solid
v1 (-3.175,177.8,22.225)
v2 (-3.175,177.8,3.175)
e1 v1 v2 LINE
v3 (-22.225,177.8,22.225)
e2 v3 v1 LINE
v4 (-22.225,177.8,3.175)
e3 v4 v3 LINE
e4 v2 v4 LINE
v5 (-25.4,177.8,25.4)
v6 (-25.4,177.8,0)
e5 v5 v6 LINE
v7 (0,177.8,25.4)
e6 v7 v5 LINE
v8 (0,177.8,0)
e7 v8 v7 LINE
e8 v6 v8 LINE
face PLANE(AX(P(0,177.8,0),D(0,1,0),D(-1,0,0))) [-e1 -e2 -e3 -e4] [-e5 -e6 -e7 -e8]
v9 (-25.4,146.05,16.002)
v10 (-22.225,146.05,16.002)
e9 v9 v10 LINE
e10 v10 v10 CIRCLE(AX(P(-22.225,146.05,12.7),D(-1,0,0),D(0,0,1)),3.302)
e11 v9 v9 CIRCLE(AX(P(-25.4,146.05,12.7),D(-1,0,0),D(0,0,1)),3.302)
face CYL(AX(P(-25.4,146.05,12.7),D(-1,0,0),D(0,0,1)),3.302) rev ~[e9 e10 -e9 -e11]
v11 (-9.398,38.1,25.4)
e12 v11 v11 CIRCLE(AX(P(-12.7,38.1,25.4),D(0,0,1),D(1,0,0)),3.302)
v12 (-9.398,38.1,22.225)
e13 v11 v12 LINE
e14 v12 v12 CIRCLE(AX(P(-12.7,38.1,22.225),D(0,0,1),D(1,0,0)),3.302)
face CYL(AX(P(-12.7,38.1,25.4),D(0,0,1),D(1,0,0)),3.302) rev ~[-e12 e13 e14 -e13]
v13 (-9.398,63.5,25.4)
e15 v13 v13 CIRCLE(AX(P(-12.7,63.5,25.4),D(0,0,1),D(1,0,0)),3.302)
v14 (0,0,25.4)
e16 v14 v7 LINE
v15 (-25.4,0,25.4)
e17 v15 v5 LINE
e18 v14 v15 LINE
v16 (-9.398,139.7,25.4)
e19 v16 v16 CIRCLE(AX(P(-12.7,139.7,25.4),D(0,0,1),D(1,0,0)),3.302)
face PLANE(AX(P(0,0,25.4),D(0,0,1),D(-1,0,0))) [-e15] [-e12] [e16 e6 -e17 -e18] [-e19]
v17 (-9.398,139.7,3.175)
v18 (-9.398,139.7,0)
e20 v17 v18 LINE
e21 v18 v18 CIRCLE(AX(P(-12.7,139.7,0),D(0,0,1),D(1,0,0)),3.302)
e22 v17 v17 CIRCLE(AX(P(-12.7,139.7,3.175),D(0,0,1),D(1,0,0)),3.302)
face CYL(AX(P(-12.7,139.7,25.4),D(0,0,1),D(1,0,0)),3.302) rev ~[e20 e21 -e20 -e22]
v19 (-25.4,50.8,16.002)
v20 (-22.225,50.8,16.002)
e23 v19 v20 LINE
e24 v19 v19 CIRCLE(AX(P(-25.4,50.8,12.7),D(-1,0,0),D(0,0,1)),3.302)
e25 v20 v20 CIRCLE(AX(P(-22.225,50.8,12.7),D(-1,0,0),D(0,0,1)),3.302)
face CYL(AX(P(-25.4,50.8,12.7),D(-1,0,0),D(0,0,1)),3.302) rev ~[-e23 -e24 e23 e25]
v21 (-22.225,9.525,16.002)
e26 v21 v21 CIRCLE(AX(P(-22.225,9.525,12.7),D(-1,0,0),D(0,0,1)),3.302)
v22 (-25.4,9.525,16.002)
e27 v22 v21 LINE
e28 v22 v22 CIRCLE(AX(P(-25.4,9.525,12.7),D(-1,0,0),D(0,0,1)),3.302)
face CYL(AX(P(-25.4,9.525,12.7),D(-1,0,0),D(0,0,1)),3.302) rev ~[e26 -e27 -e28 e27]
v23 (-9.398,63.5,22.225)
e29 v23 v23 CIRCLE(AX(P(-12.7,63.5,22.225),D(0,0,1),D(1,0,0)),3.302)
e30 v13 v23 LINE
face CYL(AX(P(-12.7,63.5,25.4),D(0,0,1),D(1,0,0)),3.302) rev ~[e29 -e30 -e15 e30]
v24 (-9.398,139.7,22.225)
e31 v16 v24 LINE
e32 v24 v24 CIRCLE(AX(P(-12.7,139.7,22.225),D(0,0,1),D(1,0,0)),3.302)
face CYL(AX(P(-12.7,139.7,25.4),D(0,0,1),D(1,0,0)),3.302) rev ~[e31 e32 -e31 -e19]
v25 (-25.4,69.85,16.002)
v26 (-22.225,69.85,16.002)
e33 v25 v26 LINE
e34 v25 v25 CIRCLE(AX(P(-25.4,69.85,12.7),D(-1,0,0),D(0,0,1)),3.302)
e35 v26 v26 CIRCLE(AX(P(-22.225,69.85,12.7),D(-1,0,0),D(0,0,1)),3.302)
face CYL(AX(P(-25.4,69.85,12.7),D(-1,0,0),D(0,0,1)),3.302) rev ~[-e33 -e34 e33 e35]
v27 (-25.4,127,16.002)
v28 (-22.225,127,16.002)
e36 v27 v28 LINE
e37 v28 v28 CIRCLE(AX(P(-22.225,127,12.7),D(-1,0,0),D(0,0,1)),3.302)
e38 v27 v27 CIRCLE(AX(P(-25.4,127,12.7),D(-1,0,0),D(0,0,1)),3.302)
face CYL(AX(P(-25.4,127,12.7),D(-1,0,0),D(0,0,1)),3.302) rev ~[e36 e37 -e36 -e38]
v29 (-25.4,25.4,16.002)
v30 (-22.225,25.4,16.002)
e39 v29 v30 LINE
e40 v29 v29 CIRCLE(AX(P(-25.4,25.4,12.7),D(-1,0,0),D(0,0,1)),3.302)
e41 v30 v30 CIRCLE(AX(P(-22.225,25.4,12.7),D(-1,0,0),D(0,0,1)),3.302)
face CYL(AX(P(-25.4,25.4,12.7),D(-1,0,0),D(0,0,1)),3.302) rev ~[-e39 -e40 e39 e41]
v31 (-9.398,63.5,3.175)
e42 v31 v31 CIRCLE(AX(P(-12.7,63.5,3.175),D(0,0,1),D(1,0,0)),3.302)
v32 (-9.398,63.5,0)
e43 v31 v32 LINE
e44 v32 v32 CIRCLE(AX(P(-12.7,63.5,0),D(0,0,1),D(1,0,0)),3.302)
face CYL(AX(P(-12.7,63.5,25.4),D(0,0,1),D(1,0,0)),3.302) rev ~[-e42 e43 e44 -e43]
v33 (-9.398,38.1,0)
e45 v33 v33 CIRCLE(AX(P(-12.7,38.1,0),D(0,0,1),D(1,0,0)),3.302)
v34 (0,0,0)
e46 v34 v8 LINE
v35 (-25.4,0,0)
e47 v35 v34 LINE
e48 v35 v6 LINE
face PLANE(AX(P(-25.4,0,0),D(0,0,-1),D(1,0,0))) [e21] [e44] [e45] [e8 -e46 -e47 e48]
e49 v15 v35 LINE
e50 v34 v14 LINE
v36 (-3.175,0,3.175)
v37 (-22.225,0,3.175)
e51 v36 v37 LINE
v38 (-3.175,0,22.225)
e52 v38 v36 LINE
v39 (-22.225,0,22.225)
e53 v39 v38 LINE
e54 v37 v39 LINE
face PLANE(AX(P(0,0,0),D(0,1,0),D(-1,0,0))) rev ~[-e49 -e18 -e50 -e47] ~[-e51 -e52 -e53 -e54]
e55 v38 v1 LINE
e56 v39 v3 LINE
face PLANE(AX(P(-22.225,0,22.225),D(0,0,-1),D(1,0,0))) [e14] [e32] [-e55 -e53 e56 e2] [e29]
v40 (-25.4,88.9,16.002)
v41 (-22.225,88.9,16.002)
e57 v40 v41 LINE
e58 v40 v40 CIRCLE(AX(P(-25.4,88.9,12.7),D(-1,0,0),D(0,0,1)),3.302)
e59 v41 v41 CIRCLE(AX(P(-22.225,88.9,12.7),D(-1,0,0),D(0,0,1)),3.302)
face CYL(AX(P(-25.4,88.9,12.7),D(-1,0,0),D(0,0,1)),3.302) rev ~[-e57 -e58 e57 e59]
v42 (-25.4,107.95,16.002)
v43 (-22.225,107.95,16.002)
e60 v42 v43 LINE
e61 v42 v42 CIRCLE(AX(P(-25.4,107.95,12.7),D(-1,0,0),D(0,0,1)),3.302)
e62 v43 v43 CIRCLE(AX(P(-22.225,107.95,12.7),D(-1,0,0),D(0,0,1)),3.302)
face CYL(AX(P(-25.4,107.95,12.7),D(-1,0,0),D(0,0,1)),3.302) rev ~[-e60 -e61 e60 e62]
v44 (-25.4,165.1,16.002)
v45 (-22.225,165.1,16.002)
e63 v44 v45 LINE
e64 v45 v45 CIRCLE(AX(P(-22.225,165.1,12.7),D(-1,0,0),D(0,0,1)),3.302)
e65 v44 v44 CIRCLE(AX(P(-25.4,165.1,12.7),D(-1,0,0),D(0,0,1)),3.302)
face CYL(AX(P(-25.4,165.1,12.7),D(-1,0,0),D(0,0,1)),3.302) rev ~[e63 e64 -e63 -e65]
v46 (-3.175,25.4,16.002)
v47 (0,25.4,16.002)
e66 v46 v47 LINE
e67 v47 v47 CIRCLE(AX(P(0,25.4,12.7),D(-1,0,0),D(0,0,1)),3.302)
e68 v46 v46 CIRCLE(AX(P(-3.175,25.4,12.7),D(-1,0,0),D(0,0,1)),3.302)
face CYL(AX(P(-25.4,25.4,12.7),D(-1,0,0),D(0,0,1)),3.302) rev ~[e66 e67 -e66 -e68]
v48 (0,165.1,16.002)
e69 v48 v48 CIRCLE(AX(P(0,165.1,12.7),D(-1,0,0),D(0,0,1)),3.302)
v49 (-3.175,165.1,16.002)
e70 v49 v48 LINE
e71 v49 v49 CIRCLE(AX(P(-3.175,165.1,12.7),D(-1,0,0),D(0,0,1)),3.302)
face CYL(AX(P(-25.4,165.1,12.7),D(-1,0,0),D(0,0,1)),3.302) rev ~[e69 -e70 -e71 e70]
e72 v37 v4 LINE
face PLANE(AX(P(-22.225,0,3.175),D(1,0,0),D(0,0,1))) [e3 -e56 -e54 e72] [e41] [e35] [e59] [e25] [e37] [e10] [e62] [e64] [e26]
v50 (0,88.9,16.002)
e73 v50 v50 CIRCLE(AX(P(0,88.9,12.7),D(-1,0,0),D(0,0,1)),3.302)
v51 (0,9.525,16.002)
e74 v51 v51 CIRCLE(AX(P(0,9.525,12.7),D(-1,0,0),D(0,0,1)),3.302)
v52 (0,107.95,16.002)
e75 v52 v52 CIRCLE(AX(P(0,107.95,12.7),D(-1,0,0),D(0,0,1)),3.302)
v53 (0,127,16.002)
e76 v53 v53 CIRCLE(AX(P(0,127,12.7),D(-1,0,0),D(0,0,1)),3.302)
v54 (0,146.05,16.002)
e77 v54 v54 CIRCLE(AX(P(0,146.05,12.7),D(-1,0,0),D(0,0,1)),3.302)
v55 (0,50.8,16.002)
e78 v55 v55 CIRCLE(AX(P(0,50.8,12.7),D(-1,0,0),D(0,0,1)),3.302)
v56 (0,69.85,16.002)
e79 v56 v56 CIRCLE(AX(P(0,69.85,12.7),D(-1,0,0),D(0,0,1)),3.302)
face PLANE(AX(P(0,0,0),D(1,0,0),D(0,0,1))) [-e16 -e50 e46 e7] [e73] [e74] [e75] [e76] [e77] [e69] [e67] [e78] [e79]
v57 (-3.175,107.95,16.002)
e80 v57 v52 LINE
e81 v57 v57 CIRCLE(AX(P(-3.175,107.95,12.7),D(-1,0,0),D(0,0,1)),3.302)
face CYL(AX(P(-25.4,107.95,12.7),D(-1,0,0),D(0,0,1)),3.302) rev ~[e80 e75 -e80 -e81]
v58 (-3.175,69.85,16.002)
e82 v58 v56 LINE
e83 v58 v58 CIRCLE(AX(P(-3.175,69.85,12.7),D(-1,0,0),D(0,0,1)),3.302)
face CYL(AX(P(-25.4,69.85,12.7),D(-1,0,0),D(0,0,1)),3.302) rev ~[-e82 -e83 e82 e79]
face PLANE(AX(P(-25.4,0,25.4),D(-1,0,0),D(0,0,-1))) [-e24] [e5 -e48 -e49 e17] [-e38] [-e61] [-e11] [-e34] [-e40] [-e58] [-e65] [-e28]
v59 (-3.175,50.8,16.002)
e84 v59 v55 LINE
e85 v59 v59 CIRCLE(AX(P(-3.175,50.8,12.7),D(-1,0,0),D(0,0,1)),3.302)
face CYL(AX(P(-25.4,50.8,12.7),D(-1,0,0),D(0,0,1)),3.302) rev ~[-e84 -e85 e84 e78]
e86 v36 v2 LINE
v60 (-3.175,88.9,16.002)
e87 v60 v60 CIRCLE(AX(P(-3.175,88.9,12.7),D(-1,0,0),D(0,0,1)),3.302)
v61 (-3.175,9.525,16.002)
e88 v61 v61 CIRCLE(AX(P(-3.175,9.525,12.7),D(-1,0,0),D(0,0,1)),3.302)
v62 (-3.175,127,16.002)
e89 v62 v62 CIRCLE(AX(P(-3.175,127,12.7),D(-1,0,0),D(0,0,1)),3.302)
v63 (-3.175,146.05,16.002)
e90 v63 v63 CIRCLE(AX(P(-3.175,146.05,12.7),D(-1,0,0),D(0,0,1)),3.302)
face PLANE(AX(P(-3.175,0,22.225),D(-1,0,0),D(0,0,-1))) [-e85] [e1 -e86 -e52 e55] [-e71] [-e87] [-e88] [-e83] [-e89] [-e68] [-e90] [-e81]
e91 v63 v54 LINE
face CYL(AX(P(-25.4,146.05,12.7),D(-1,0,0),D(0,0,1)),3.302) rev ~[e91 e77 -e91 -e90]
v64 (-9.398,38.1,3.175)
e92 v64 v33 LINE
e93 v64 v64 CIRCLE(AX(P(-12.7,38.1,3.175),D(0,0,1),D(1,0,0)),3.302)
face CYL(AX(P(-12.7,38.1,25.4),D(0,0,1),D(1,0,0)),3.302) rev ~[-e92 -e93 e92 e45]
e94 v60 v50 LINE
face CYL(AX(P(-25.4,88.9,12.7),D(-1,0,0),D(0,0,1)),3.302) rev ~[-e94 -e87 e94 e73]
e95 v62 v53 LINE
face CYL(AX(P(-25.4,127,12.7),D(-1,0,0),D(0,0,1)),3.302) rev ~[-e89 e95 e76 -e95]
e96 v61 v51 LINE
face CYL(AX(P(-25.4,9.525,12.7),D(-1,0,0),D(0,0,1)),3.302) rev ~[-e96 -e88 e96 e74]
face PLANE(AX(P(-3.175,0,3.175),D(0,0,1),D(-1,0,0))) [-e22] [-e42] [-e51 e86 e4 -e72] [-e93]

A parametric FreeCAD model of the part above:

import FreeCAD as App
import Part
import Sketcher

V = App.Vector
Q = App.Units.Quantity

doc = App.newDocument("Part")
body = doc.addObject("PartDesign::Body", "Body")

sketch1 = body.newObject("Sketcher::SketchObject", "Sketch")
sketch1.AttachmentSupport = (doc.getObject("XZ_Plane"), [""])
sketch1.MapMode = "FlatFace"
sketch1.addGeometry(Part.LineSegment(V(-25, 25, 0), V(0, 25, 0)), False)
sketch1.addGeometry(Part.LineSegment(V(0, 25, 0), V(0, 0, 0)), False)
sketch1.addGeometry(Part.LineSegment(V(0, 0, 0), V(-25, 0, 0)), False)
sketch1.addGeometry(Part.LineSegment(V(-25, 0, 0), V(-25, 25, 0)), False)
sketch1.addGeometry(Part.LineSegment(V(-3, 22, 0), V(-22, 22, 0)), False)
sketch1.addGeometry(Part.LineSegment(V(-22, 22, 0), V(-22, 3, 0)), False)
sketch1.addGeometry(Part.LineSegment(V(-22, 3, 0), V(-3, 3, 0)), False)
sketch1.addGeometry(Part.LineSegment(V(-3, 3, 0), V(-3, 22, 0)), False)
sketch1.addConstraint(Sketcher.Constraint("Coincident", 0, 2, 1, 1))
sketch1.addConstraint(Sketcher.Constraint("Coincident", 1, 2, 2, 1))
sketch1.addConstraint(Sketcher.Constraint("Coincident", 2, 2, 3, 1))
sketch1.addConstraint(Sketcher.Constraint("Coincident", 3, 2, 0, 1))
sketch1.addConstraint(Sketcher.Constraint("Coincident", 4, 2, 5, 1))
sketch1.addConstraint(Sketcher.Constraint("Coincident", 5, 2, 6, 1))
sketch1.addConstraint(Sketcher.Constraint("Coincident", 6, 2, 7, 1))
sketch1.addConstraint(Sketcher.Constraint("Coincident", 7, 2, 4, 1))
sketch1.addConstraint(Sketcher.Constraint("Horizontal", 0))
sketch1.addConstraint(Sketcher.Constraint("Vertical", 1))
sketch1.addConstraint(Sketcher.Constraint("Horizontal", 2))
sketch1.addConstraint(Sketcher.Constraint("Vertical", 3))
sketch1.addConstraint(Sketcher.Constraint("Horizontal", 4))
sketch1.addConstraint(Sketcher.Constraint("Vertical", 5))
sketch1.addConstraint(Sketcher.Constraint("Horizontal", 6))
sketch1.addConstraint(Sketcher.Constraint("Vertical", 7))
sketch1.addConstraint(Sketcher.Constraint("Coincident", 1, 2, -1, 1))
sketch1.addConstraint(Sketcher.Constraint("Equal", 2, 1))
sketch1.addConstraint(Sketcher.Constraint("Equal", 6, 5))
sketch1.addConstraint(Sketcher.Constraint("DistanceX", 0, 1, 0, 2, Q("1 in")))
sketch1.addConstraint(Sketcher.Constraint("DistanceY", -1, 1, 5, 2, Q("0.125 in")))
sketch1.addConstraint(Sketcher.Constraint("DistanceX", 6, 2, -1, 1, Q("0.125 in")))
sketch1.addConstraint(Sketcher.Constraint("DistanceX", 3, 2, 4, 2, Q("0.125 in")))
pad1 = body.newObject("PartDesign::Pad", "Pad")
pad1.Profile = sketch1
pad1.Length = Q("7 in")
pad1.Reversed = True

sketch2 = body.newObject("Sketcher::SketchObject", "Sketch001")
sketch2.AttachmentSupport = (doc.getObject("YZ_Plane"), [""])
sketch2.MapMode = "FlatFace"
sketch2.AttachmentOffset = App.Placement(V(0, 0, -1 * 25.4), App.Rotation())
sketch2.addGeometry(Part.Circle(V(165.1, 12.7, 0), V(0, 0, 1), 3.3), False)
sketch2.addGeometry(Part.Circle(V(108, 12.7, 0), V(0, 0, 1), 3.3), False)
sketch2.addGeometry(Part.Circle(V(25.4, 12.7, 0), V(0, 0, 1), 3.3), False)
sketch2.addGeometry(Part.Circle(V(9.5, 12.7, 0), V(0, 0, 1), 3.3), False)
sketch2.addConstraint(Sketcher.Constraint("Equal", 0, 1))
sketch2.addConstraint(Sketcher.Constraint("Equal", 1, 2))
sketch2.addConstraint(Sketcher.Constraint("Equal", 2, 3))
sketch2.addConstraint(Sketcher.Constraint("Horizontal", 0, 3, 1, 3))
sketch2.addConstraint(Sketcher.Constraint("Horizontal", 1, 3, 2, 3))
sketch2.addConstraint(Sketcher.Constraint("Horizontal", 2, 3, 3, 3))
sketch2.addConstraint(Sketcher.Constraint("Diameter", 0, Q("0.26 in")))
sketch2.addConstraint(Sketcher.Constraint("DistanceY", -1, 1, 0, 3, Q("0.5 in")))
sketch2.addConstraint(Sketcher.Constraint("DistanceX", -1, 1, 1, 3, Q("4.25 in")))
sketch2.addConstraint(Sketcher.Constraint("DistanceX", -1, 1, 2, 3, Q("1 in")))
sketch2.addConstraint(Sketcher.Constraint("DistanceX", -1, 1, 0, 3, Q("6.5 in")))
sketch2.addConstraint(Sketcher.Constraint("DistanceX", -1, 1, 3, 3, Q("0.375 in")))
pocket1 = body.newObject("PartDesign::Pocket", "Pocket")
pocket1.Profile = sketch2
pocket1.Length = Q("1 in")
pocket1.Reversed = True

sketch3 = body.newObject("Sketcher::SketchObject", "Sketch002")
sketch3.AttachmentSupport = (doc.getObject("YZ_Plane"), [""])
sketch3.MapMode = "FlatFace"
sketch3.AttachmentOffset = App.Placement(V(0, 0, -1 * 25.4), App.Rotation())
sketch3.addGeometry(Part.Circle(V(50.8, 12.7, 0), V(0, 0, 1), 3.3), False)
sketch3.addGeometry(Part.Circle(V(69.8, 12.7, 0), V(0, 0, 1), 3.3), False)
sketch3.addGeometry(Part.Circle(V(88.9, 12.7, 0), V(0, 0, 1), 3.3), False)
sketch3.addGeometry(Part.Circle(V(127, 12.7, 0), V(0, 0, 1), 3.3), False)
sketch3.addGeometry(Part.Circle(V(146.1, 12.7, 0), V(0, 0, 1), 3.3), False)
sketch3.addConstraint(Sketcher.Constraint("Equal", 0, 1))
sketch3.addConstraint(Sketcher.Constraint("Equal", 1, 2))
sketch3.addConstraint(Sketcher.Constraint("Equal", 2, 3))
sketch3.addConstraint(Sketcher.Constraint("Equal", 3, 4))
sketch3.addConstraint(Sketcher.Constraint("Horizontal", 0, 3, 1, 3))
sketch3.addConstraint(Sketcher.Constraint("Horizontal", 1, 3, 2, 3))
sketch3.addConstraint(Sketcher.Constraint("Horizontal", 2, 3, 3, 3))
sketch3.addConstraint(Sketcher.Constraint("Horizontal", 3, 3, 4, 3))
sketch3.addConstraint(Sketcher.Constraint("Diameter", 0, Q("0.26 in")))
sketch3.addConstraint(Sketcher.Constraint("DistanceX", 0, 3, 1, 3, Q("0.75 in")))
sketch3.addConstraint(Sketcher.Constraint("DistanceX", 1, 3, 2, 3, Q("0.75 in")))
sketch3.addConstraint(Sketcher.Constraint("DistanceX", 3, 3, 4, 3, Q("0.75 in")))
sketch3.addConstraint(Sketcher.Constraint("DistanceX", -1, 1, 0, 3, Q("2 in")))
sketch3.addConstraint(Sketcher.Constraint("DistanceX", -1, 1, 3, 3, Q("5 in")))
sketch3.addConstraint(Sketcher.Constraint("DistanceY", -1, 1, 0, 3, Q("0.5 in")))
pocket2 = body.newObject("PartDesign::Pocket", "Pocket001")
pocket2.Profile = sketch3
pocket2.Length = Q("1 in")
pocket2.Reversed = True

sketch4 = body.newObject("Sketcher::SketchObject", "Sketch003")
sketch4.AttachmentSupport = (doc.getObject("XY_Plane"), [""])
sketch4.MapMode = "FlatFace"
sketch4.AttachmentOffset = App.Placement(V(0, 0, 1 * 25.4), App.Rotation())
sketch4.addGeometry(Part.Circle(V(-12.7, 139.7, 0), V(0, 0, 1), 3.3), False)
sketch4.addGeometry(Part.Circle(V(-12.7, 63.5, 0), V(0, 0, 1), 3.3), False)
sketch4.addGeometry(Part.Circle(V(-12.7, 38.1, 0), V(0, 0, 1), 3.3), False)
sketch4.addConstraint(Sketcher.Constraint("Equal", 0, 1))
sketch4.addConstraint(Sketcher.Constraint("Equal", 1, 2))
sketch4.addConstraint(Sketcher.Constraint("Vertical", 0, 3, 1, 3))
sketch4.addConstraint(Sketcher.Constraint("Vertical", 1, 3, 2, 3))
sketch4.addConstraint(Sketcher.Constraint("Diameter", 0, Q("0.26 in")))
sketch4.addConstraint(Sketcher.Constraint("DistanceY", 2, 3, 1, 3, Q("1 in")))
sketch4.addConstraint(Sketcher.Constraint("DistanceY", -1, 1, 2, 3, Q("1.5 in")))
sketch4.addConstraint(Sketcher.Constraint("DistanceY", 1, 3, 0, 3, Q("3 in")))
sketch4.addConstraint(Sketcher.Constraint("DistanceX", 0, 3, -1, 1, Q("0.5 in")))
pocket3 = body.newObject("PartDesign::Pocket", "Pocket002")
pocket3.Profile = sketch4
pocket3.Length = Q("1 in")

doc.recompute()
